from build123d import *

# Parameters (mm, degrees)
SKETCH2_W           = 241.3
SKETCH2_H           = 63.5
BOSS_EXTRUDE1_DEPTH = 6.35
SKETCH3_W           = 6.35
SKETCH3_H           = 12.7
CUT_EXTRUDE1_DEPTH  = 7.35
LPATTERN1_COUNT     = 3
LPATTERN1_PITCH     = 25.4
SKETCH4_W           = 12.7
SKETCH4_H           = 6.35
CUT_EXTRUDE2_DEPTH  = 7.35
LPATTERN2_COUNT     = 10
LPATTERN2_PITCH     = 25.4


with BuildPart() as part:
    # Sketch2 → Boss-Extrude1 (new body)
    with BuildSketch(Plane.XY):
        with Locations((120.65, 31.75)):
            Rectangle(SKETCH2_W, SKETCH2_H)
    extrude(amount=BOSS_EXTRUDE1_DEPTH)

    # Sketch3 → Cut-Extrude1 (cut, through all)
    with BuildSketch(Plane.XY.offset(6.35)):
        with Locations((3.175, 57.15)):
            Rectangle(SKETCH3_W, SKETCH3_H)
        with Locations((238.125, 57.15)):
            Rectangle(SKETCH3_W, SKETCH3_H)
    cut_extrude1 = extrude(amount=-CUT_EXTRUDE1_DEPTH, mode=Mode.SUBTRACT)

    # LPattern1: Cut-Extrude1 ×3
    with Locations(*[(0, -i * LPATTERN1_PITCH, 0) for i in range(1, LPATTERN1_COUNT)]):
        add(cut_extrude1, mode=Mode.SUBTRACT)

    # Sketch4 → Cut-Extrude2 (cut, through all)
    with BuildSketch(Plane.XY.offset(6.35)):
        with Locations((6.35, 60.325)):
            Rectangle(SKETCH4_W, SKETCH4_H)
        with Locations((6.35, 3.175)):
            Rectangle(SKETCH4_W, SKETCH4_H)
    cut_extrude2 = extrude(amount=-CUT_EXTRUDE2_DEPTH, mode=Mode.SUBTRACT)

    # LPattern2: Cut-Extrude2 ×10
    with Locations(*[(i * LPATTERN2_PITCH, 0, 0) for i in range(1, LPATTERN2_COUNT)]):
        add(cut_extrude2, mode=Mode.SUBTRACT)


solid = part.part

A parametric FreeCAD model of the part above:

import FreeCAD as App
import Part
import Sketcher

V = App.Vector
Q = App.Units.Quantity


def add_polygon(sketch, points):
    """Adds a closed chain of lines whose ends are joined by coincident constraints."""
    first, n = sketch.GeometryCount, len(points)
    for a, b in zip(points, points[1:] + points[:1]):
        sketch.addGeometry(Part.LineSegment(App.Vector(*a, 0), App.Vector(*b, 0)), False)
    for i in range(n):
        sketch.addConstraint(Sketcher.Constraint("Coincident", first + i, 2, first + (i + 1) % n, 1))

doc = App.newDocument("Part")
params = doc.addObject("Spreadsheet::Sheet", "Params")
for row, (alias, value) in enumerate([
    ("sketch1_width", "9.5 in"),
    ("sketch1_height", "2.5 in"),
    ("pad1_length", "0.25 in"),
    ("sketch2_height", "0.5 in"),
    ("sketch2_width", "0.25 in"),
    ("linearpattern_pitch", "1 in"),
    ("sketch3_width", "0.5 in"),
    ("sketch3_height", "0.25 in"),
    ("linearpattern2_pitch", "1 in"),
], start=1):
    params.set(f"A{row}", alias)
    params.set(f"B{row}", "=" + value)
    params.setAlias(f"B{row}", alias)

body = doc.addObject("PartDesign::Body", "Body")

# Sketch on XY plane
sketch1 = body.newObject("Sketcher::SketchObject", "Sketch")
sketch1.AttachmentSupport = (doc.getObject("XY_Plane"), [""])
sketch1.MapMode = "FlatFace"
add_polygon(sketch1, [(0, 64), (0, 0), (241, 0), (241, 64)])  # lines 0-3
sketch1.addConstraint([
    Sketcher.Constraint("Vertical", 0),
    Sketcher.Constraint("Horizontal", 1),
    Sketcher.Constraint("Vertical", 2),
    Sketcher.Constraint("Horizontal", 3),
    Sketcher.Constraint("Coincident", 0, 2, -1, 1),
    Sketcher.Constraint("DistanceX", 1, 1, 1, 2, Q("9.5 in")),
    Sketcher.Constraint("DistanceY", 0, 2, 0, 1, Q("2.5 in")),
])
sketch1.setExpression("Constraints[9]", "Params.sketch1_width")
sketch1.setExpression("Constraints[10]", "Params.sketch1_height")
pad1 = body.newObject("PartDesign::Pad", "Pad")
pad1.Profile = sketch1
pad1.setExpression("Length", "Params.pad1_length")

# Sketch on XY plane
sketch2 = body.newObject("Sketcher::SketchObject", "Sketch001")
sketch2.AttachmentSupport = (doc.getObject("XY_Plane"), [""])
sketch2.MapMode = "FlatFace"
sketch2.AttachmentOffset = App.Placement(V(0, 0, 0.25 * 25.4), App.Rotation())
add_polygon(sketch2, [(0, 64), (0, 51), (6, 51), (6, 64)])  # lines 0-3
add_polygon(sketch2, [(235, 64), (235, 51), (241, 51), (241, 64)])  # lines 4-7
sketch2.addConstraint([
    Sketcher.Constraint("Vertical", 0),
    Sketcher.Constraint("Horizontal", 1),
    Sketcher.Constraint("Vertical", 2),
    Sketcher.Constraint("Horizontal", 3),
    Sketcher.Constraint("Vertical", 4),
    Sketcher.Constraint("Horizontal", 5),
    Sketcher.Constraint("Vertical", 6),
    Sketcher.Constraint("Horizontal", 7),
    Sketcher.Constraint("PointOnObject", 0, 2, -2),
    Sketcher.Constraint("Horizontal", 1, 2, 4, 2),
    Sketcher.Constraint("Horizontal", 3, 2, 6, 2),
    Sketcher.Constraint("Equal", 3, 5),
    Sketcher.Constraint("DistanceY", 0, 2, 0, 1, Q("0.5 in")),
    Sketcher.Constraint("DistanceY", -1, 1, 0, 2, Q("2 in")),
    Sketcher.Constraint("DistanceX", 1, 2, 4, 2, Q("9 in")),
    Sketcher.Constraint("DistanceX", 1, 1, 1, 2, Q("0.25 in")),
])
sketch2.setExpression("Constraints[20]", "Params.sketch2_height")
sketch2.setExpression("Constraints[23]", "Params.sketch2_width")
pocket1 = body.newObject("PartDesign::Pocket", "Pocket")
pocket1.Profile = sketch2
pocket1.Type = "ThroughAll"
doc.recompute()

linearpattern = body.newObject("PartDesign::LinearPattern", "LinearPattern")
linearpattern.Originals = [pocket1]
linearpattern.Direction = (doc.getObject("Y_Axis"), [""])
linearpattern.Mode = "offset"
linearpattern.setExpression("Offset", "Params.linearpattern_pitch")
linearpattern.Occurrences = 3
linearpattern.Reversed = True
body.Tip = linearpattern

# Sketch on XY plane
sketch3 = body.newObject("Sketcher::SketchObject", "Sketch002")
sketch3.AttachmentSupport = (doc.getObject("XY_Plane"), [""])
sketch3.MapMode = "FlatFace"
sketch3.AttachmentOffset = App.Placement(V(0, 0, 0.25 * 25.4), App.Rotation())
add_polygon(sketch3, [(0, 64), (0, 57), (13, 57), (13, 64)])  # lines 0-3
add_polygon(sketch3, [(0, 6), (0, 0), (13, 0), (13, 6)])  # lines 4-7
sketch3.addConstraint([
    Sketcher.Constraint("Vertical", 0),
    Sketcher.Constraint("Horizontal", 1),
    Sketcher.Constraint("Vertical", 2),
    Sketcher.Constraint("Horizontal", 3),
    Sketcher.Constraint("Vertical", 4),
    Sketcher.Constraint("Horizontal", 5),
    Sketcher.Constraint("Vertical", 6),
    Sketcher.Constraint("Horizontal", 7),
    Sketcher.Constraint("Coincident", 4, 2, -1, 1),
    Sketcher.Constraint("PointOnObject", 0, 2, -2),
    Sketcher.Constraint("Vertical", 2, 2, 5, 2),
    Sketcher.Constraint("Equal", 2, 4),
    Sketcher.Constraint("DistanceX", 1, 1, 1, 2, Q("0.5 in")),
    Sketcher.Constraint("DistanceY", 6, 2, 1, 2, Q("2 in")),
    Sketcher.Constraint("DistanceY", 0, 2, 0, 1, Q("0.25 in")),
])
sketch3.setExpression("Constraints[20]", "Params.sketch3_width")
sketch3.setExpression("Constraints[22]", "Params.sketch3_height")
pocket2 = body.newObject("PartDesign::Pocket", "Pocket001")
pocket2.Profile = sketch3
pocket2.Type = "ThroughAll"
doc.recompute()

linearpattern2 = body.newObject("PartDesign::LinearPattern", "LinearPattern001")
linearpattern2.Originals = [pocket2]
linearpattern2.Direction = (doc.getObject("X_Axis"), [""])
linearpattern2.Mode = "offset"
linearpattern2.setExpression("Offset", "Params.linearpattern2_pitch")
linearpattern2.Occurrences = 10
body.Tip = linearpattern2

doc.recompute()
